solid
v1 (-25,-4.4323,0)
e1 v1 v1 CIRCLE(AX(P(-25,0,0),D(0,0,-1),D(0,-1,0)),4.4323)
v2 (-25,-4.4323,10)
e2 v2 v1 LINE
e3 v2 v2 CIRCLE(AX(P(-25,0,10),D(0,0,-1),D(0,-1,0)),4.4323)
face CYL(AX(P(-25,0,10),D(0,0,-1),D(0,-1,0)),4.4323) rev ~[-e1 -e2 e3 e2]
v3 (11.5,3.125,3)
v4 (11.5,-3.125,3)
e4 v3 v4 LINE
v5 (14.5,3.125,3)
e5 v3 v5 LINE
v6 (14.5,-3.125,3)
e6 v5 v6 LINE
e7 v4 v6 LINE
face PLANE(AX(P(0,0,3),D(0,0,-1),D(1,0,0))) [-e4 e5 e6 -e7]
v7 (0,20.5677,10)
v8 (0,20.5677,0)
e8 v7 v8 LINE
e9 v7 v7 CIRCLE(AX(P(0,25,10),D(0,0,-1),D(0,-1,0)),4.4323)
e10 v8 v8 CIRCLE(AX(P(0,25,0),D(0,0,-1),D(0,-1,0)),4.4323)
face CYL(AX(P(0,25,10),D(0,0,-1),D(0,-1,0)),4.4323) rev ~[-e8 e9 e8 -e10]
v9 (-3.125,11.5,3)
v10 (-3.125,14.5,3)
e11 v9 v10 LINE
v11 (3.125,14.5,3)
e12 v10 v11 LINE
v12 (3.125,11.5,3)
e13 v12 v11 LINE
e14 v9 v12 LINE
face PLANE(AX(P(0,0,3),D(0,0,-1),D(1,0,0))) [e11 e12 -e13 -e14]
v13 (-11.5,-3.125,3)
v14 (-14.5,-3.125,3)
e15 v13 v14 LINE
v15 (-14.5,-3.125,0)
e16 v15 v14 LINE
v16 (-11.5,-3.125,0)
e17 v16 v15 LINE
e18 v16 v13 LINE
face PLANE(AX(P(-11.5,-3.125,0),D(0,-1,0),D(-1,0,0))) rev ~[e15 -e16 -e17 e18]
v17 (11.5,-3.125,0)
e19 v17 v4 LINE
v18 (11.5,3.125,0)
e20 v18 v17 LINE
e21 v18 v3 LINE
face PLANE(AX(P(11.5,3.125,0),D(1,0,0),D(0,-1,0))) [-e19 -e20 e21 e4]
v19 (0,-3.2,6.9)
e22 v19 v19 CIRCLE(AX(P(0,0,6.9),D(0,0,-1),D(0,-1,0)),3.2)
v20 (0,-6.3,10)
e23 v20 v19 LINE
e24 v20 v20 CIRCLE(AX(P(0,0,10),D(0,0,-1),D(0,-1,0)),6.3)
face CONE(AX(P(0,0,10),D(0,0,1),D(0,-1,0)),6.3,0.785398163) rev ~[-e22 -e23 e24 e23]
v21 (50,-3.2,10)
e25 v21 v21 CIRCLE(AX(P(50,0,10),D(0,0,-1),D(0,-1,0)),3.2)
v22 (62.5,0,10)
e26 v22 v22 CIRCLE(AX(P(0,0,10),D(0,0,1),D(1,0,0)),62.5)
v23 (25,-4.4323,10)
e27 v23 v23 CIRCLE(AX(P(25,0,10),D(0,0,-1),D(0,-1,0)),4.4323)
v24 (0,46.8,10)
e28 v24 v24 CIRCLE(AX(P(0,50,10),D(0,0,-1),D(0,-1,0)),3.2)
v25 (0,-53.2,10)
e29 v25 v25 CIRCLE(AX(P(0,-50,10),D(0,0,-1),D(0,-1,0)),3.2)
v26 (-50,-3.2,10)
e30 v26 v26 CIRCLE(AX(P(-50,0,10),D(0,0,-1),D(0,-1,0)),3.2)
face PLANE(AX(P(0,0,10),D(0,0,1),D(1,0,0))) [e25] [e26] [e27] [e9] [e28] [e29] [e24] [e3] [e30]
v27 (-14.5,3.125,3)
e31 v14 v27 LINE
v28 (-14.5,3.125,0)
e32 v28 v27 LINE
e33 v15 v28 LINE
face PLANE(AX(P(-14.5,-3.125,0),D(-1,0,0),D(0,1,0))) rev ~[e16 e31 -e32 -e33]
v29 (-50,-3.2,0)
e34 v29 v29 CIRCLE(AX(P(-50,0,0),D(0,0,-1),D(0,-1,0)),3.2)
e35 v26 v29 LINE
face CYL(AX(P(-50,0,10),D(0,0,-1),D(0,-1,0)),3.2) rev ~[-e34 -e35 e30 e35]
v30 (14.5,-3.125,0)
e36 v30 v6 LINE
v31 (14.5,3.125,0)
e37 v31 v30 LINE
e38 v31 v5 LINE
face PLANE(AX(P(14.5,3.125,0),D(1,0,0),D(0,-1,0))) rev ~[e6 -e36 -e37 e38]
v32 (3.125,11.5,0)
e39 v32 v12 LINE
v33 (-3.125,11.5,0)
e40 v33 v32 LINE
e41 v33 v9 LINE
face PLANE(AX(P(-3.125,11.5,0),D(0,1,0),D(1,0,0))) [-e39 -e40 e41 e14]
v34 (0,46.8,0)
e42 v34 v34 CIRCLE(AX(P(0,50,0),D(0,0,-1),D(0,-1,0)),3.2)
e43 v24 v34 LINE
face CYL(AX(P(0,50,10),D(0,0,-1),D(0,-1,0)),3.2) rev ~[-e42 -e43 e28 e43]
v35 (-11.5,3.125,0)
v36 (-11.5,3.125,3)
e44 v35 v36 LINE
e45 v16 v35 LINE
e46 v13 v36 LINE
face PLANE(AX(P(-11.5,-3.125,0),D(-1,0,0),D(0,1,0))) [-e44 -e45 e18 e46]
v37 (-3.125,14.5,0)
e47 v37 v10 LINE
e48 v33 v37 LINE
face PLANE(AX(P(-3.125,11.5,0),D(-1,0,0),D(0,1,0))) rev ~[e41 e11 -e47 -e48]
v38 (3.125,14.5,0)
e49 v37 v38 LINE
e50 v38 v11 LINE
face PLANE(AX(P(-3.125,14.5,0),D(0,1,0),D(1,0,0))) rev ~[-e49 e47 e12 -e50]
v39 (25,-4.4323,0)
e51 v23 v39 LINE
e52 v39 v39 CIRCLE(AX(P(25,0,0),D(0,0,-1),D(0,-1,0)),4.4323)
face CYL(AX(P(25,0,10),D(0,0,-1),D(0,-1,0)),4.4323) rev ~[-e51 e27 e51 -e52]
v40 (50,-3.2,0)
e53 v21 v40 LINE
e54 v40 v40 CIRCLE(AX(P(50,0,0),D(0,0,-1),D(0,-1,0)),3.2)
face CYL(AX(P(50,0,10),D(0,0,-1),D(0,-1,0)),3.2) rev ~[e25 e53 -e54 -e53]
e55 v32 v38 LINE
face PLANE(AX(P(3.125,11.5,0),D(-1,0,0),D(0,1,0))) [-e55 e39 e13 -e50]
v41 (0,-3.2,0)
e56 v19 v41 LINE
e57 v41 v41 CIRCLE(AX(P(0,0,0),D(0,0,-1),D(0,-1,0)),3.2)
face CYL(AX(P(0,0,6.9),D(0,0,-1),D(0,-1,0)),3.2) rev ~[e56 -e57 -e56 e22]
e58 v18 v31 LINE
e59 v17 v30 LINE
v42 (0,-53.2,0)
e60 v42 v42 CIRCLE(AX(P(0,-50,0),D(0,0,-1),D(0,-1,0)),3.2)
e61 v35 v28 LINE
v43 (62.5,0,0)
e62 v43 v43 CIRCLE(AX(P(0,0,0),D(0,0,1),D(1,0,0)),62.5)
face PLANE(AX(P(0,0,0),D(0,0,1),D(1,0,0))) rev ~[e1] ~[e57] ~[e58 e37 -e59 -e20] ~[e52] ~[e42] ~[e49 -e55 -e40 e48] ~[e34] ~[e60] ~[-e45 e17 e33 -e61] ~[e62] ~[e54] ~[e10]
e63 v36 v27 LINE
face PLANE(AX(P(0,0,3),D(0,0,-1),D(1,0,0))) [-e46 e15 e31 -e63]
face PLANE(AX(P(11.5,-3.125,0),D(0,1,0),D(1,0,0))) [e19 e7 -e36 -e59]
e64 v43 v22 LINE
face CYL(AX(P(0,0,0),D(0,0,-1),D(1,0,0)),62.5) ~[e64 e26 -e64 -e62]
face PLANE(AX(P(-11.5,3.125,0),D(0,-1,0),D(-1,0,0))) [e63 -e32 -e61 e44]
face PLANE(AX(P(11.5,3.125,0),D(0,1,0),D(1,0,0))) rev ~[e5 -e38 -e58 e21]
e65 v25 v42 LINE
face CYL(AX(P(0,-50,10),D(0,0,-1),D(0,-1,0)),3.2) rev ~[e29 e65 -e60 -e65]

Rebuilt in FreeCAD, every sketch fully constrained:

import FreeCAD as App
import Part
import Sketcher


def add_polygon(sketch, points):
    """Adds a closed chain of lines whose ends are joined by coincident constraints."""
    first, n = sketch.GeometryCount, len(points)
    for a, b in zip(points, points[1:] + points[:1]):
        sketch.addGeometry(Part.LineSegment(App.Vector(*a, 0), App.Vector(*b, 0)), False)
    for i in range(n):
        sketch.addConstraint(Sketcher.Constraint("Coincident", first + i, 2, first + (i + 1) % n, 1))

doc = App.newDocument("Part")
params = doc.addObject("Spreadsheet::Sheet", "Params")
for row, (alias, value) in enumerate([
    ("sketch1_diameter", "125 mm"),
    ("pad1_length", "10 mm"),
    ("hole_diameter", "8.8646 mm"),
    ("sketch3_diameter", "6.4 mm"),
    ("hole2_diameter", "6.4 mm"),
    ("sketch4_diameter", "6.4 mm"),
    ("hole3_diameter", "6.4 mm"),
    ("hole3_csink_diameter", "12.6 mm"),
    ("sketch5_width", "3 mm"),
    ("pocket1_length", "3 mm"),
], start=1):
    params.set(f"A{row}", alias)
    params.set(f"B{row}", "=" + value)
    params.setAlias(f"B{row}", alias)

body = doc.addObject("PartDesign::Body", "Body")

# Sketch on XY plane
sketch1 = body.newObject("Sketcher::SketchObject", "Sketch")
sketch1.AttachmentSupport = (doc.getObject("XY_Plane"), [""])
sketch1.MapMode = "FlatFace"
sketch1.addGeometry(Part.Circle(App.Vector(0, 0, 0), App.Vector(0, 0, 1), 62), False)
sketch1.addConstraint(Sketcher.Constraint("Coincident", 0, 3, -1, 1))
sketch1.addConstraint(Sketcher.Constraint("Diameter", 0, 125.0))
sketch1.setExpression("Constraints[1]", "Params.sketch1_diameter")
pad1 = body.newObject("PartDesign::Pad", "Pad")
pad1.Profile = sketch1
pad1.setExpression("Length", "Params.pad1_length")

# Sketch on XY plane
sketch2 = body.newObject("Sketcher::SketchObject", "Sketch001")
sketch2.AttachmentSupport = (doc.getObject("XY_Plane"), [""])
sketch2.MapMode = "FlatFace"
sketch2.AttachmentOffset = App.Placement(App.Vector(0, 0, 10), App.Rotation())
sketch2.addGeometry(Part.Circle(App.Vector(25, 0, 0), App.Vector(0, 0, 1), 4.4), False)
sketch2.addGeometry(Part.Circle(App.Vector(-25, 0, 0), App.Vector(0, 0, 1), 4.4), False)
sketch2.addGeometry(Part.Circle(App.Vector(0, 25, 0), App.Vector(0, 0, 1), 4.4), False)
sketch2.addConstraint(Sketcher.Constraint("Equal", 0, 1))
sketch2.addConstraint(Sketcher.Constraint("Equal", 1, 2))
sketch2.addConstraint(Sketcher.Constraint("Symmetric", 0, 3, 1, 3, -1, 1))
sketch2.addConstraint(Sketcher.Constraint("PointOnObject", 0, 3, -1))
sketch2.addConstraint(Sketcher.Constraint("PointOnObject", 2, 3, -2))
sketch2.addConstraint(Sketcher.Constraint("DistanceX", -1, 1, 0, 3, 25.0))
sketch2.addConstraint(Sketcher.Constraint("DistanceY", -1, 1, 2, 3, 25.0))
sketch2.addConstraint(Sketcher.Constraint("Diameter", 0, 8.8646))
doc.recompute()
hole = body.newObject("PartDesign::Hole", "Hole")
hole.Profile = sketch2
hole.ThreadType = "None"
hole.setExpression("Diameter", "Params.hole_diameter")
hole.DepthType = "ThroughAll"

# Sketch on XY plane
sketch3 = body.newObject("Sketcher::SketchObject", "Sketch002")
sketch3.AttachmentSupport = (doc.getObject("XY_Plane"), [""])
sketch3.MapMode = "FlatFace"
sketch3.AttachmentOffset = App.Placement(App.Vector(0, 0, 10), App.Rotation())
sketch3.addGeometry(Part.Circle(App.Vector(0, 50, 0), App.Vector(0, 0, 1), 3.2), False)
sketch3.addGeometry(Part.Circle(App.Vector(50, 0, 0), App.Vector(0, 0, 1), 3.2), False)
sketch3.addGeometry(Part.Circle(App.Vector(0, -50, 0), App.Vector(0, 0, 1), 3.2), False)
sketch3.addGeometry(Part.Circle(App.Vector(-50, 0, 0), App.Vector(0, 0, 1), 3.2), False)
sketch3.addConstraint(Sketcher.Constraint("Equal", 0, 1))
sketch3.addConstraint(Sketcher.Constraint("Equal", 1, 2))
sketch3.addConstraint(Sketcher.Constraint("Equal", 2, 3))
sketch3.addConstraint(Sketcher.Constraint("Symmetric", 0, 3, 2, 3, -1, 1))
sketch3.addConstraint(Sketcher.Constraint("Symmetric", 1, 3, 3, 3, -1, 1))
sketch3.addConstraint(Sketcher.Constraint("PointOnObject", 0, 3, -2))
sketch3.addConstraint(Sketcher.Constraint("PointOnObject", 1, 3, -1))
sketch3.addConstraint(Sketcher.Constraint("Diameter", 0, 6.4))
sketch3.addConstraint(Sketcher.Constraint("DistanceY", -1, 1, 0, 3, 50.0))
sketch3.addConstraint(Sketcher.Constraint("DistanceX", -1, 1, 1, 3, 50.0))
sketch3.setExpression("Constraints[7]", "Params.sketch3_diameter")
doc.recompute()
hole2 = body.newObject("PartDesign::Hole", "Hole001")
hole2.Profile = sketch3
hole2.ThreadType = "None"
hole2.setExpression("Diameter", "Params.hole2_diameter")
hole2.DepthType = "ThroughAll"

# Sketch on XY plane
sketch4 = body.newObject("Sketcher::SketchObject", "Sketch003")
sketch4.AttachmentSupport = (doc.getObject("XY_Plane"), [""])
sketch4.MapMode = "FlatFace"
sketch4.AttachmentOffset = App.Placement(App.Vector(0, 0, 10), App.Rotation())
sketch4.addGeometry(Part.Circle(App.Vector(0, 0, 0), App.Vector(0, 0, 1), 3.2), False)
sketch4.addConstraint(Sketcher.Constraint("Coincident", 0, 3, -1, 1))
sketch4.addConstraint(Sketcher.Constraint("Diameter", 0, 6.4))
sketch4.setExpression("Constraints[1]", "Params.sketch4_diameter")
doc.recompute()
hole3 = body.newObject("PartDesign::Hole", "Hole002")
hole3.Profile = sketch4
hole3.ThreadType = "None"
hole3.setExpression("Diameter", "Params.hole3_diameter")
hole3.DepthType = "ThroughAll"
hole3.HoleCutType = "Countersink"
hole3.setExpression("HoleCutDiameter", "Params.hole3_csink_diameter")
hole3.HoleCutCountersinkAngle = 90

# Sketch on XY plane
sketch5 = body.newObject("Sketcher::SketchObject", "Sketch004")
sketch5.AttachmentSupport = (doc.getObject("XY_Plane"), [""])
sketch5.MapMode = "FlatFace"
add_polygon(sketch5, [(11.5, -3.1), (11.5, 3.1), (14.5, 3.1), (14.5, -3.1)])  # lines 0-3
add_polygon(sketch5, [(-11.5, 3.1), (-11.5, -3.1), (-14.5, -3.1), (-14.5, 3.1)])  # lines 4-7
add_polygon(sketch5, [(3.1, 11.5), (-3.1, 11.5), (-3.1, 14.5), (3.1, 14.5)])  # lines 8-11
sketch5.addConstraint(Sketcher.Constraint("Vertical", 0))
sketch5.addConstraint(Sketcher.Constraint("Horizontal", 1))
sketch5.addConstraint(Sketcher.Constraint("Vertical", 2))
sketch5.addConstraint(Sketcher.Constraint("Horizontal", 3))
sketch5.addConstraint(Sketcher.Constraint("Vertical", 4))
sketch5.addConstraint(Sketcher.Constraint("Horizontal", 5))
sketch5.addConstraint(Sketcher.Constraint("Vertical", 6))
sketch5.addConstraint(Sketcher.Constraint("Horizontal", 7))
sketch5.addConstraint(Sketcher.Constraint("Horizontal", 8))
sketch5.addConstraint(Sketcher.Constraint("Vertical", 9))
sketch5.addConstraint(Sketcher.Constraint("Horizontal", 10))
sketch5.addConstraint(Sketcher.Constraint("Vertical", 11))
sketch5.addConstraint(Sketcher.Constraint("Symmetric", 0, 2, 4, 2, -1, 1))
sketch5.addConstraint(Sketcher.Constraint("Symmetric", 2, 2, 6, 2, -1, 1))
sketch5.addConstraint(Sketcher.Constraint("Horizontal", 3, 2, 4, 2))
sketch5.addConstraint(Sketcher.Constraint("Equal", 10, 0))
sketch5.addConstraint(Sketcher.Constraint("Equal", 7, 9))
sketch5.addConstraint(Sketcher.Constraint("DistanceX", 1, 1, 1, 2, 3.0))
sketch5.addConstraint(Sketcher.Constraint("DistanceX", -1, 1, 0, 2, 11.5))
sketch5.addConstraint(Sketcher.Constraint("DistanceY", -1, 1, 8, 2, 11.5))
sketch5.addConstraint(Sketcher.Constraint("DistanceY", -1, 1, 0, 2, 3.125))
sketch5.addConstraint(Sketcher.Constraint("DistanceX", 8, 2, -1, 1, 3.125))
sketch5.setExpression("Constraints[29]", "Params.sketch5_width")
pocket1 = body.newObject("PartDesign::Pocket", "Pocket")
pocket1.Profile = sketch5
pocket1.setExpression("Length", "Params.pocket1_length")
pocket1.Reversed = True

doc.recompute()
